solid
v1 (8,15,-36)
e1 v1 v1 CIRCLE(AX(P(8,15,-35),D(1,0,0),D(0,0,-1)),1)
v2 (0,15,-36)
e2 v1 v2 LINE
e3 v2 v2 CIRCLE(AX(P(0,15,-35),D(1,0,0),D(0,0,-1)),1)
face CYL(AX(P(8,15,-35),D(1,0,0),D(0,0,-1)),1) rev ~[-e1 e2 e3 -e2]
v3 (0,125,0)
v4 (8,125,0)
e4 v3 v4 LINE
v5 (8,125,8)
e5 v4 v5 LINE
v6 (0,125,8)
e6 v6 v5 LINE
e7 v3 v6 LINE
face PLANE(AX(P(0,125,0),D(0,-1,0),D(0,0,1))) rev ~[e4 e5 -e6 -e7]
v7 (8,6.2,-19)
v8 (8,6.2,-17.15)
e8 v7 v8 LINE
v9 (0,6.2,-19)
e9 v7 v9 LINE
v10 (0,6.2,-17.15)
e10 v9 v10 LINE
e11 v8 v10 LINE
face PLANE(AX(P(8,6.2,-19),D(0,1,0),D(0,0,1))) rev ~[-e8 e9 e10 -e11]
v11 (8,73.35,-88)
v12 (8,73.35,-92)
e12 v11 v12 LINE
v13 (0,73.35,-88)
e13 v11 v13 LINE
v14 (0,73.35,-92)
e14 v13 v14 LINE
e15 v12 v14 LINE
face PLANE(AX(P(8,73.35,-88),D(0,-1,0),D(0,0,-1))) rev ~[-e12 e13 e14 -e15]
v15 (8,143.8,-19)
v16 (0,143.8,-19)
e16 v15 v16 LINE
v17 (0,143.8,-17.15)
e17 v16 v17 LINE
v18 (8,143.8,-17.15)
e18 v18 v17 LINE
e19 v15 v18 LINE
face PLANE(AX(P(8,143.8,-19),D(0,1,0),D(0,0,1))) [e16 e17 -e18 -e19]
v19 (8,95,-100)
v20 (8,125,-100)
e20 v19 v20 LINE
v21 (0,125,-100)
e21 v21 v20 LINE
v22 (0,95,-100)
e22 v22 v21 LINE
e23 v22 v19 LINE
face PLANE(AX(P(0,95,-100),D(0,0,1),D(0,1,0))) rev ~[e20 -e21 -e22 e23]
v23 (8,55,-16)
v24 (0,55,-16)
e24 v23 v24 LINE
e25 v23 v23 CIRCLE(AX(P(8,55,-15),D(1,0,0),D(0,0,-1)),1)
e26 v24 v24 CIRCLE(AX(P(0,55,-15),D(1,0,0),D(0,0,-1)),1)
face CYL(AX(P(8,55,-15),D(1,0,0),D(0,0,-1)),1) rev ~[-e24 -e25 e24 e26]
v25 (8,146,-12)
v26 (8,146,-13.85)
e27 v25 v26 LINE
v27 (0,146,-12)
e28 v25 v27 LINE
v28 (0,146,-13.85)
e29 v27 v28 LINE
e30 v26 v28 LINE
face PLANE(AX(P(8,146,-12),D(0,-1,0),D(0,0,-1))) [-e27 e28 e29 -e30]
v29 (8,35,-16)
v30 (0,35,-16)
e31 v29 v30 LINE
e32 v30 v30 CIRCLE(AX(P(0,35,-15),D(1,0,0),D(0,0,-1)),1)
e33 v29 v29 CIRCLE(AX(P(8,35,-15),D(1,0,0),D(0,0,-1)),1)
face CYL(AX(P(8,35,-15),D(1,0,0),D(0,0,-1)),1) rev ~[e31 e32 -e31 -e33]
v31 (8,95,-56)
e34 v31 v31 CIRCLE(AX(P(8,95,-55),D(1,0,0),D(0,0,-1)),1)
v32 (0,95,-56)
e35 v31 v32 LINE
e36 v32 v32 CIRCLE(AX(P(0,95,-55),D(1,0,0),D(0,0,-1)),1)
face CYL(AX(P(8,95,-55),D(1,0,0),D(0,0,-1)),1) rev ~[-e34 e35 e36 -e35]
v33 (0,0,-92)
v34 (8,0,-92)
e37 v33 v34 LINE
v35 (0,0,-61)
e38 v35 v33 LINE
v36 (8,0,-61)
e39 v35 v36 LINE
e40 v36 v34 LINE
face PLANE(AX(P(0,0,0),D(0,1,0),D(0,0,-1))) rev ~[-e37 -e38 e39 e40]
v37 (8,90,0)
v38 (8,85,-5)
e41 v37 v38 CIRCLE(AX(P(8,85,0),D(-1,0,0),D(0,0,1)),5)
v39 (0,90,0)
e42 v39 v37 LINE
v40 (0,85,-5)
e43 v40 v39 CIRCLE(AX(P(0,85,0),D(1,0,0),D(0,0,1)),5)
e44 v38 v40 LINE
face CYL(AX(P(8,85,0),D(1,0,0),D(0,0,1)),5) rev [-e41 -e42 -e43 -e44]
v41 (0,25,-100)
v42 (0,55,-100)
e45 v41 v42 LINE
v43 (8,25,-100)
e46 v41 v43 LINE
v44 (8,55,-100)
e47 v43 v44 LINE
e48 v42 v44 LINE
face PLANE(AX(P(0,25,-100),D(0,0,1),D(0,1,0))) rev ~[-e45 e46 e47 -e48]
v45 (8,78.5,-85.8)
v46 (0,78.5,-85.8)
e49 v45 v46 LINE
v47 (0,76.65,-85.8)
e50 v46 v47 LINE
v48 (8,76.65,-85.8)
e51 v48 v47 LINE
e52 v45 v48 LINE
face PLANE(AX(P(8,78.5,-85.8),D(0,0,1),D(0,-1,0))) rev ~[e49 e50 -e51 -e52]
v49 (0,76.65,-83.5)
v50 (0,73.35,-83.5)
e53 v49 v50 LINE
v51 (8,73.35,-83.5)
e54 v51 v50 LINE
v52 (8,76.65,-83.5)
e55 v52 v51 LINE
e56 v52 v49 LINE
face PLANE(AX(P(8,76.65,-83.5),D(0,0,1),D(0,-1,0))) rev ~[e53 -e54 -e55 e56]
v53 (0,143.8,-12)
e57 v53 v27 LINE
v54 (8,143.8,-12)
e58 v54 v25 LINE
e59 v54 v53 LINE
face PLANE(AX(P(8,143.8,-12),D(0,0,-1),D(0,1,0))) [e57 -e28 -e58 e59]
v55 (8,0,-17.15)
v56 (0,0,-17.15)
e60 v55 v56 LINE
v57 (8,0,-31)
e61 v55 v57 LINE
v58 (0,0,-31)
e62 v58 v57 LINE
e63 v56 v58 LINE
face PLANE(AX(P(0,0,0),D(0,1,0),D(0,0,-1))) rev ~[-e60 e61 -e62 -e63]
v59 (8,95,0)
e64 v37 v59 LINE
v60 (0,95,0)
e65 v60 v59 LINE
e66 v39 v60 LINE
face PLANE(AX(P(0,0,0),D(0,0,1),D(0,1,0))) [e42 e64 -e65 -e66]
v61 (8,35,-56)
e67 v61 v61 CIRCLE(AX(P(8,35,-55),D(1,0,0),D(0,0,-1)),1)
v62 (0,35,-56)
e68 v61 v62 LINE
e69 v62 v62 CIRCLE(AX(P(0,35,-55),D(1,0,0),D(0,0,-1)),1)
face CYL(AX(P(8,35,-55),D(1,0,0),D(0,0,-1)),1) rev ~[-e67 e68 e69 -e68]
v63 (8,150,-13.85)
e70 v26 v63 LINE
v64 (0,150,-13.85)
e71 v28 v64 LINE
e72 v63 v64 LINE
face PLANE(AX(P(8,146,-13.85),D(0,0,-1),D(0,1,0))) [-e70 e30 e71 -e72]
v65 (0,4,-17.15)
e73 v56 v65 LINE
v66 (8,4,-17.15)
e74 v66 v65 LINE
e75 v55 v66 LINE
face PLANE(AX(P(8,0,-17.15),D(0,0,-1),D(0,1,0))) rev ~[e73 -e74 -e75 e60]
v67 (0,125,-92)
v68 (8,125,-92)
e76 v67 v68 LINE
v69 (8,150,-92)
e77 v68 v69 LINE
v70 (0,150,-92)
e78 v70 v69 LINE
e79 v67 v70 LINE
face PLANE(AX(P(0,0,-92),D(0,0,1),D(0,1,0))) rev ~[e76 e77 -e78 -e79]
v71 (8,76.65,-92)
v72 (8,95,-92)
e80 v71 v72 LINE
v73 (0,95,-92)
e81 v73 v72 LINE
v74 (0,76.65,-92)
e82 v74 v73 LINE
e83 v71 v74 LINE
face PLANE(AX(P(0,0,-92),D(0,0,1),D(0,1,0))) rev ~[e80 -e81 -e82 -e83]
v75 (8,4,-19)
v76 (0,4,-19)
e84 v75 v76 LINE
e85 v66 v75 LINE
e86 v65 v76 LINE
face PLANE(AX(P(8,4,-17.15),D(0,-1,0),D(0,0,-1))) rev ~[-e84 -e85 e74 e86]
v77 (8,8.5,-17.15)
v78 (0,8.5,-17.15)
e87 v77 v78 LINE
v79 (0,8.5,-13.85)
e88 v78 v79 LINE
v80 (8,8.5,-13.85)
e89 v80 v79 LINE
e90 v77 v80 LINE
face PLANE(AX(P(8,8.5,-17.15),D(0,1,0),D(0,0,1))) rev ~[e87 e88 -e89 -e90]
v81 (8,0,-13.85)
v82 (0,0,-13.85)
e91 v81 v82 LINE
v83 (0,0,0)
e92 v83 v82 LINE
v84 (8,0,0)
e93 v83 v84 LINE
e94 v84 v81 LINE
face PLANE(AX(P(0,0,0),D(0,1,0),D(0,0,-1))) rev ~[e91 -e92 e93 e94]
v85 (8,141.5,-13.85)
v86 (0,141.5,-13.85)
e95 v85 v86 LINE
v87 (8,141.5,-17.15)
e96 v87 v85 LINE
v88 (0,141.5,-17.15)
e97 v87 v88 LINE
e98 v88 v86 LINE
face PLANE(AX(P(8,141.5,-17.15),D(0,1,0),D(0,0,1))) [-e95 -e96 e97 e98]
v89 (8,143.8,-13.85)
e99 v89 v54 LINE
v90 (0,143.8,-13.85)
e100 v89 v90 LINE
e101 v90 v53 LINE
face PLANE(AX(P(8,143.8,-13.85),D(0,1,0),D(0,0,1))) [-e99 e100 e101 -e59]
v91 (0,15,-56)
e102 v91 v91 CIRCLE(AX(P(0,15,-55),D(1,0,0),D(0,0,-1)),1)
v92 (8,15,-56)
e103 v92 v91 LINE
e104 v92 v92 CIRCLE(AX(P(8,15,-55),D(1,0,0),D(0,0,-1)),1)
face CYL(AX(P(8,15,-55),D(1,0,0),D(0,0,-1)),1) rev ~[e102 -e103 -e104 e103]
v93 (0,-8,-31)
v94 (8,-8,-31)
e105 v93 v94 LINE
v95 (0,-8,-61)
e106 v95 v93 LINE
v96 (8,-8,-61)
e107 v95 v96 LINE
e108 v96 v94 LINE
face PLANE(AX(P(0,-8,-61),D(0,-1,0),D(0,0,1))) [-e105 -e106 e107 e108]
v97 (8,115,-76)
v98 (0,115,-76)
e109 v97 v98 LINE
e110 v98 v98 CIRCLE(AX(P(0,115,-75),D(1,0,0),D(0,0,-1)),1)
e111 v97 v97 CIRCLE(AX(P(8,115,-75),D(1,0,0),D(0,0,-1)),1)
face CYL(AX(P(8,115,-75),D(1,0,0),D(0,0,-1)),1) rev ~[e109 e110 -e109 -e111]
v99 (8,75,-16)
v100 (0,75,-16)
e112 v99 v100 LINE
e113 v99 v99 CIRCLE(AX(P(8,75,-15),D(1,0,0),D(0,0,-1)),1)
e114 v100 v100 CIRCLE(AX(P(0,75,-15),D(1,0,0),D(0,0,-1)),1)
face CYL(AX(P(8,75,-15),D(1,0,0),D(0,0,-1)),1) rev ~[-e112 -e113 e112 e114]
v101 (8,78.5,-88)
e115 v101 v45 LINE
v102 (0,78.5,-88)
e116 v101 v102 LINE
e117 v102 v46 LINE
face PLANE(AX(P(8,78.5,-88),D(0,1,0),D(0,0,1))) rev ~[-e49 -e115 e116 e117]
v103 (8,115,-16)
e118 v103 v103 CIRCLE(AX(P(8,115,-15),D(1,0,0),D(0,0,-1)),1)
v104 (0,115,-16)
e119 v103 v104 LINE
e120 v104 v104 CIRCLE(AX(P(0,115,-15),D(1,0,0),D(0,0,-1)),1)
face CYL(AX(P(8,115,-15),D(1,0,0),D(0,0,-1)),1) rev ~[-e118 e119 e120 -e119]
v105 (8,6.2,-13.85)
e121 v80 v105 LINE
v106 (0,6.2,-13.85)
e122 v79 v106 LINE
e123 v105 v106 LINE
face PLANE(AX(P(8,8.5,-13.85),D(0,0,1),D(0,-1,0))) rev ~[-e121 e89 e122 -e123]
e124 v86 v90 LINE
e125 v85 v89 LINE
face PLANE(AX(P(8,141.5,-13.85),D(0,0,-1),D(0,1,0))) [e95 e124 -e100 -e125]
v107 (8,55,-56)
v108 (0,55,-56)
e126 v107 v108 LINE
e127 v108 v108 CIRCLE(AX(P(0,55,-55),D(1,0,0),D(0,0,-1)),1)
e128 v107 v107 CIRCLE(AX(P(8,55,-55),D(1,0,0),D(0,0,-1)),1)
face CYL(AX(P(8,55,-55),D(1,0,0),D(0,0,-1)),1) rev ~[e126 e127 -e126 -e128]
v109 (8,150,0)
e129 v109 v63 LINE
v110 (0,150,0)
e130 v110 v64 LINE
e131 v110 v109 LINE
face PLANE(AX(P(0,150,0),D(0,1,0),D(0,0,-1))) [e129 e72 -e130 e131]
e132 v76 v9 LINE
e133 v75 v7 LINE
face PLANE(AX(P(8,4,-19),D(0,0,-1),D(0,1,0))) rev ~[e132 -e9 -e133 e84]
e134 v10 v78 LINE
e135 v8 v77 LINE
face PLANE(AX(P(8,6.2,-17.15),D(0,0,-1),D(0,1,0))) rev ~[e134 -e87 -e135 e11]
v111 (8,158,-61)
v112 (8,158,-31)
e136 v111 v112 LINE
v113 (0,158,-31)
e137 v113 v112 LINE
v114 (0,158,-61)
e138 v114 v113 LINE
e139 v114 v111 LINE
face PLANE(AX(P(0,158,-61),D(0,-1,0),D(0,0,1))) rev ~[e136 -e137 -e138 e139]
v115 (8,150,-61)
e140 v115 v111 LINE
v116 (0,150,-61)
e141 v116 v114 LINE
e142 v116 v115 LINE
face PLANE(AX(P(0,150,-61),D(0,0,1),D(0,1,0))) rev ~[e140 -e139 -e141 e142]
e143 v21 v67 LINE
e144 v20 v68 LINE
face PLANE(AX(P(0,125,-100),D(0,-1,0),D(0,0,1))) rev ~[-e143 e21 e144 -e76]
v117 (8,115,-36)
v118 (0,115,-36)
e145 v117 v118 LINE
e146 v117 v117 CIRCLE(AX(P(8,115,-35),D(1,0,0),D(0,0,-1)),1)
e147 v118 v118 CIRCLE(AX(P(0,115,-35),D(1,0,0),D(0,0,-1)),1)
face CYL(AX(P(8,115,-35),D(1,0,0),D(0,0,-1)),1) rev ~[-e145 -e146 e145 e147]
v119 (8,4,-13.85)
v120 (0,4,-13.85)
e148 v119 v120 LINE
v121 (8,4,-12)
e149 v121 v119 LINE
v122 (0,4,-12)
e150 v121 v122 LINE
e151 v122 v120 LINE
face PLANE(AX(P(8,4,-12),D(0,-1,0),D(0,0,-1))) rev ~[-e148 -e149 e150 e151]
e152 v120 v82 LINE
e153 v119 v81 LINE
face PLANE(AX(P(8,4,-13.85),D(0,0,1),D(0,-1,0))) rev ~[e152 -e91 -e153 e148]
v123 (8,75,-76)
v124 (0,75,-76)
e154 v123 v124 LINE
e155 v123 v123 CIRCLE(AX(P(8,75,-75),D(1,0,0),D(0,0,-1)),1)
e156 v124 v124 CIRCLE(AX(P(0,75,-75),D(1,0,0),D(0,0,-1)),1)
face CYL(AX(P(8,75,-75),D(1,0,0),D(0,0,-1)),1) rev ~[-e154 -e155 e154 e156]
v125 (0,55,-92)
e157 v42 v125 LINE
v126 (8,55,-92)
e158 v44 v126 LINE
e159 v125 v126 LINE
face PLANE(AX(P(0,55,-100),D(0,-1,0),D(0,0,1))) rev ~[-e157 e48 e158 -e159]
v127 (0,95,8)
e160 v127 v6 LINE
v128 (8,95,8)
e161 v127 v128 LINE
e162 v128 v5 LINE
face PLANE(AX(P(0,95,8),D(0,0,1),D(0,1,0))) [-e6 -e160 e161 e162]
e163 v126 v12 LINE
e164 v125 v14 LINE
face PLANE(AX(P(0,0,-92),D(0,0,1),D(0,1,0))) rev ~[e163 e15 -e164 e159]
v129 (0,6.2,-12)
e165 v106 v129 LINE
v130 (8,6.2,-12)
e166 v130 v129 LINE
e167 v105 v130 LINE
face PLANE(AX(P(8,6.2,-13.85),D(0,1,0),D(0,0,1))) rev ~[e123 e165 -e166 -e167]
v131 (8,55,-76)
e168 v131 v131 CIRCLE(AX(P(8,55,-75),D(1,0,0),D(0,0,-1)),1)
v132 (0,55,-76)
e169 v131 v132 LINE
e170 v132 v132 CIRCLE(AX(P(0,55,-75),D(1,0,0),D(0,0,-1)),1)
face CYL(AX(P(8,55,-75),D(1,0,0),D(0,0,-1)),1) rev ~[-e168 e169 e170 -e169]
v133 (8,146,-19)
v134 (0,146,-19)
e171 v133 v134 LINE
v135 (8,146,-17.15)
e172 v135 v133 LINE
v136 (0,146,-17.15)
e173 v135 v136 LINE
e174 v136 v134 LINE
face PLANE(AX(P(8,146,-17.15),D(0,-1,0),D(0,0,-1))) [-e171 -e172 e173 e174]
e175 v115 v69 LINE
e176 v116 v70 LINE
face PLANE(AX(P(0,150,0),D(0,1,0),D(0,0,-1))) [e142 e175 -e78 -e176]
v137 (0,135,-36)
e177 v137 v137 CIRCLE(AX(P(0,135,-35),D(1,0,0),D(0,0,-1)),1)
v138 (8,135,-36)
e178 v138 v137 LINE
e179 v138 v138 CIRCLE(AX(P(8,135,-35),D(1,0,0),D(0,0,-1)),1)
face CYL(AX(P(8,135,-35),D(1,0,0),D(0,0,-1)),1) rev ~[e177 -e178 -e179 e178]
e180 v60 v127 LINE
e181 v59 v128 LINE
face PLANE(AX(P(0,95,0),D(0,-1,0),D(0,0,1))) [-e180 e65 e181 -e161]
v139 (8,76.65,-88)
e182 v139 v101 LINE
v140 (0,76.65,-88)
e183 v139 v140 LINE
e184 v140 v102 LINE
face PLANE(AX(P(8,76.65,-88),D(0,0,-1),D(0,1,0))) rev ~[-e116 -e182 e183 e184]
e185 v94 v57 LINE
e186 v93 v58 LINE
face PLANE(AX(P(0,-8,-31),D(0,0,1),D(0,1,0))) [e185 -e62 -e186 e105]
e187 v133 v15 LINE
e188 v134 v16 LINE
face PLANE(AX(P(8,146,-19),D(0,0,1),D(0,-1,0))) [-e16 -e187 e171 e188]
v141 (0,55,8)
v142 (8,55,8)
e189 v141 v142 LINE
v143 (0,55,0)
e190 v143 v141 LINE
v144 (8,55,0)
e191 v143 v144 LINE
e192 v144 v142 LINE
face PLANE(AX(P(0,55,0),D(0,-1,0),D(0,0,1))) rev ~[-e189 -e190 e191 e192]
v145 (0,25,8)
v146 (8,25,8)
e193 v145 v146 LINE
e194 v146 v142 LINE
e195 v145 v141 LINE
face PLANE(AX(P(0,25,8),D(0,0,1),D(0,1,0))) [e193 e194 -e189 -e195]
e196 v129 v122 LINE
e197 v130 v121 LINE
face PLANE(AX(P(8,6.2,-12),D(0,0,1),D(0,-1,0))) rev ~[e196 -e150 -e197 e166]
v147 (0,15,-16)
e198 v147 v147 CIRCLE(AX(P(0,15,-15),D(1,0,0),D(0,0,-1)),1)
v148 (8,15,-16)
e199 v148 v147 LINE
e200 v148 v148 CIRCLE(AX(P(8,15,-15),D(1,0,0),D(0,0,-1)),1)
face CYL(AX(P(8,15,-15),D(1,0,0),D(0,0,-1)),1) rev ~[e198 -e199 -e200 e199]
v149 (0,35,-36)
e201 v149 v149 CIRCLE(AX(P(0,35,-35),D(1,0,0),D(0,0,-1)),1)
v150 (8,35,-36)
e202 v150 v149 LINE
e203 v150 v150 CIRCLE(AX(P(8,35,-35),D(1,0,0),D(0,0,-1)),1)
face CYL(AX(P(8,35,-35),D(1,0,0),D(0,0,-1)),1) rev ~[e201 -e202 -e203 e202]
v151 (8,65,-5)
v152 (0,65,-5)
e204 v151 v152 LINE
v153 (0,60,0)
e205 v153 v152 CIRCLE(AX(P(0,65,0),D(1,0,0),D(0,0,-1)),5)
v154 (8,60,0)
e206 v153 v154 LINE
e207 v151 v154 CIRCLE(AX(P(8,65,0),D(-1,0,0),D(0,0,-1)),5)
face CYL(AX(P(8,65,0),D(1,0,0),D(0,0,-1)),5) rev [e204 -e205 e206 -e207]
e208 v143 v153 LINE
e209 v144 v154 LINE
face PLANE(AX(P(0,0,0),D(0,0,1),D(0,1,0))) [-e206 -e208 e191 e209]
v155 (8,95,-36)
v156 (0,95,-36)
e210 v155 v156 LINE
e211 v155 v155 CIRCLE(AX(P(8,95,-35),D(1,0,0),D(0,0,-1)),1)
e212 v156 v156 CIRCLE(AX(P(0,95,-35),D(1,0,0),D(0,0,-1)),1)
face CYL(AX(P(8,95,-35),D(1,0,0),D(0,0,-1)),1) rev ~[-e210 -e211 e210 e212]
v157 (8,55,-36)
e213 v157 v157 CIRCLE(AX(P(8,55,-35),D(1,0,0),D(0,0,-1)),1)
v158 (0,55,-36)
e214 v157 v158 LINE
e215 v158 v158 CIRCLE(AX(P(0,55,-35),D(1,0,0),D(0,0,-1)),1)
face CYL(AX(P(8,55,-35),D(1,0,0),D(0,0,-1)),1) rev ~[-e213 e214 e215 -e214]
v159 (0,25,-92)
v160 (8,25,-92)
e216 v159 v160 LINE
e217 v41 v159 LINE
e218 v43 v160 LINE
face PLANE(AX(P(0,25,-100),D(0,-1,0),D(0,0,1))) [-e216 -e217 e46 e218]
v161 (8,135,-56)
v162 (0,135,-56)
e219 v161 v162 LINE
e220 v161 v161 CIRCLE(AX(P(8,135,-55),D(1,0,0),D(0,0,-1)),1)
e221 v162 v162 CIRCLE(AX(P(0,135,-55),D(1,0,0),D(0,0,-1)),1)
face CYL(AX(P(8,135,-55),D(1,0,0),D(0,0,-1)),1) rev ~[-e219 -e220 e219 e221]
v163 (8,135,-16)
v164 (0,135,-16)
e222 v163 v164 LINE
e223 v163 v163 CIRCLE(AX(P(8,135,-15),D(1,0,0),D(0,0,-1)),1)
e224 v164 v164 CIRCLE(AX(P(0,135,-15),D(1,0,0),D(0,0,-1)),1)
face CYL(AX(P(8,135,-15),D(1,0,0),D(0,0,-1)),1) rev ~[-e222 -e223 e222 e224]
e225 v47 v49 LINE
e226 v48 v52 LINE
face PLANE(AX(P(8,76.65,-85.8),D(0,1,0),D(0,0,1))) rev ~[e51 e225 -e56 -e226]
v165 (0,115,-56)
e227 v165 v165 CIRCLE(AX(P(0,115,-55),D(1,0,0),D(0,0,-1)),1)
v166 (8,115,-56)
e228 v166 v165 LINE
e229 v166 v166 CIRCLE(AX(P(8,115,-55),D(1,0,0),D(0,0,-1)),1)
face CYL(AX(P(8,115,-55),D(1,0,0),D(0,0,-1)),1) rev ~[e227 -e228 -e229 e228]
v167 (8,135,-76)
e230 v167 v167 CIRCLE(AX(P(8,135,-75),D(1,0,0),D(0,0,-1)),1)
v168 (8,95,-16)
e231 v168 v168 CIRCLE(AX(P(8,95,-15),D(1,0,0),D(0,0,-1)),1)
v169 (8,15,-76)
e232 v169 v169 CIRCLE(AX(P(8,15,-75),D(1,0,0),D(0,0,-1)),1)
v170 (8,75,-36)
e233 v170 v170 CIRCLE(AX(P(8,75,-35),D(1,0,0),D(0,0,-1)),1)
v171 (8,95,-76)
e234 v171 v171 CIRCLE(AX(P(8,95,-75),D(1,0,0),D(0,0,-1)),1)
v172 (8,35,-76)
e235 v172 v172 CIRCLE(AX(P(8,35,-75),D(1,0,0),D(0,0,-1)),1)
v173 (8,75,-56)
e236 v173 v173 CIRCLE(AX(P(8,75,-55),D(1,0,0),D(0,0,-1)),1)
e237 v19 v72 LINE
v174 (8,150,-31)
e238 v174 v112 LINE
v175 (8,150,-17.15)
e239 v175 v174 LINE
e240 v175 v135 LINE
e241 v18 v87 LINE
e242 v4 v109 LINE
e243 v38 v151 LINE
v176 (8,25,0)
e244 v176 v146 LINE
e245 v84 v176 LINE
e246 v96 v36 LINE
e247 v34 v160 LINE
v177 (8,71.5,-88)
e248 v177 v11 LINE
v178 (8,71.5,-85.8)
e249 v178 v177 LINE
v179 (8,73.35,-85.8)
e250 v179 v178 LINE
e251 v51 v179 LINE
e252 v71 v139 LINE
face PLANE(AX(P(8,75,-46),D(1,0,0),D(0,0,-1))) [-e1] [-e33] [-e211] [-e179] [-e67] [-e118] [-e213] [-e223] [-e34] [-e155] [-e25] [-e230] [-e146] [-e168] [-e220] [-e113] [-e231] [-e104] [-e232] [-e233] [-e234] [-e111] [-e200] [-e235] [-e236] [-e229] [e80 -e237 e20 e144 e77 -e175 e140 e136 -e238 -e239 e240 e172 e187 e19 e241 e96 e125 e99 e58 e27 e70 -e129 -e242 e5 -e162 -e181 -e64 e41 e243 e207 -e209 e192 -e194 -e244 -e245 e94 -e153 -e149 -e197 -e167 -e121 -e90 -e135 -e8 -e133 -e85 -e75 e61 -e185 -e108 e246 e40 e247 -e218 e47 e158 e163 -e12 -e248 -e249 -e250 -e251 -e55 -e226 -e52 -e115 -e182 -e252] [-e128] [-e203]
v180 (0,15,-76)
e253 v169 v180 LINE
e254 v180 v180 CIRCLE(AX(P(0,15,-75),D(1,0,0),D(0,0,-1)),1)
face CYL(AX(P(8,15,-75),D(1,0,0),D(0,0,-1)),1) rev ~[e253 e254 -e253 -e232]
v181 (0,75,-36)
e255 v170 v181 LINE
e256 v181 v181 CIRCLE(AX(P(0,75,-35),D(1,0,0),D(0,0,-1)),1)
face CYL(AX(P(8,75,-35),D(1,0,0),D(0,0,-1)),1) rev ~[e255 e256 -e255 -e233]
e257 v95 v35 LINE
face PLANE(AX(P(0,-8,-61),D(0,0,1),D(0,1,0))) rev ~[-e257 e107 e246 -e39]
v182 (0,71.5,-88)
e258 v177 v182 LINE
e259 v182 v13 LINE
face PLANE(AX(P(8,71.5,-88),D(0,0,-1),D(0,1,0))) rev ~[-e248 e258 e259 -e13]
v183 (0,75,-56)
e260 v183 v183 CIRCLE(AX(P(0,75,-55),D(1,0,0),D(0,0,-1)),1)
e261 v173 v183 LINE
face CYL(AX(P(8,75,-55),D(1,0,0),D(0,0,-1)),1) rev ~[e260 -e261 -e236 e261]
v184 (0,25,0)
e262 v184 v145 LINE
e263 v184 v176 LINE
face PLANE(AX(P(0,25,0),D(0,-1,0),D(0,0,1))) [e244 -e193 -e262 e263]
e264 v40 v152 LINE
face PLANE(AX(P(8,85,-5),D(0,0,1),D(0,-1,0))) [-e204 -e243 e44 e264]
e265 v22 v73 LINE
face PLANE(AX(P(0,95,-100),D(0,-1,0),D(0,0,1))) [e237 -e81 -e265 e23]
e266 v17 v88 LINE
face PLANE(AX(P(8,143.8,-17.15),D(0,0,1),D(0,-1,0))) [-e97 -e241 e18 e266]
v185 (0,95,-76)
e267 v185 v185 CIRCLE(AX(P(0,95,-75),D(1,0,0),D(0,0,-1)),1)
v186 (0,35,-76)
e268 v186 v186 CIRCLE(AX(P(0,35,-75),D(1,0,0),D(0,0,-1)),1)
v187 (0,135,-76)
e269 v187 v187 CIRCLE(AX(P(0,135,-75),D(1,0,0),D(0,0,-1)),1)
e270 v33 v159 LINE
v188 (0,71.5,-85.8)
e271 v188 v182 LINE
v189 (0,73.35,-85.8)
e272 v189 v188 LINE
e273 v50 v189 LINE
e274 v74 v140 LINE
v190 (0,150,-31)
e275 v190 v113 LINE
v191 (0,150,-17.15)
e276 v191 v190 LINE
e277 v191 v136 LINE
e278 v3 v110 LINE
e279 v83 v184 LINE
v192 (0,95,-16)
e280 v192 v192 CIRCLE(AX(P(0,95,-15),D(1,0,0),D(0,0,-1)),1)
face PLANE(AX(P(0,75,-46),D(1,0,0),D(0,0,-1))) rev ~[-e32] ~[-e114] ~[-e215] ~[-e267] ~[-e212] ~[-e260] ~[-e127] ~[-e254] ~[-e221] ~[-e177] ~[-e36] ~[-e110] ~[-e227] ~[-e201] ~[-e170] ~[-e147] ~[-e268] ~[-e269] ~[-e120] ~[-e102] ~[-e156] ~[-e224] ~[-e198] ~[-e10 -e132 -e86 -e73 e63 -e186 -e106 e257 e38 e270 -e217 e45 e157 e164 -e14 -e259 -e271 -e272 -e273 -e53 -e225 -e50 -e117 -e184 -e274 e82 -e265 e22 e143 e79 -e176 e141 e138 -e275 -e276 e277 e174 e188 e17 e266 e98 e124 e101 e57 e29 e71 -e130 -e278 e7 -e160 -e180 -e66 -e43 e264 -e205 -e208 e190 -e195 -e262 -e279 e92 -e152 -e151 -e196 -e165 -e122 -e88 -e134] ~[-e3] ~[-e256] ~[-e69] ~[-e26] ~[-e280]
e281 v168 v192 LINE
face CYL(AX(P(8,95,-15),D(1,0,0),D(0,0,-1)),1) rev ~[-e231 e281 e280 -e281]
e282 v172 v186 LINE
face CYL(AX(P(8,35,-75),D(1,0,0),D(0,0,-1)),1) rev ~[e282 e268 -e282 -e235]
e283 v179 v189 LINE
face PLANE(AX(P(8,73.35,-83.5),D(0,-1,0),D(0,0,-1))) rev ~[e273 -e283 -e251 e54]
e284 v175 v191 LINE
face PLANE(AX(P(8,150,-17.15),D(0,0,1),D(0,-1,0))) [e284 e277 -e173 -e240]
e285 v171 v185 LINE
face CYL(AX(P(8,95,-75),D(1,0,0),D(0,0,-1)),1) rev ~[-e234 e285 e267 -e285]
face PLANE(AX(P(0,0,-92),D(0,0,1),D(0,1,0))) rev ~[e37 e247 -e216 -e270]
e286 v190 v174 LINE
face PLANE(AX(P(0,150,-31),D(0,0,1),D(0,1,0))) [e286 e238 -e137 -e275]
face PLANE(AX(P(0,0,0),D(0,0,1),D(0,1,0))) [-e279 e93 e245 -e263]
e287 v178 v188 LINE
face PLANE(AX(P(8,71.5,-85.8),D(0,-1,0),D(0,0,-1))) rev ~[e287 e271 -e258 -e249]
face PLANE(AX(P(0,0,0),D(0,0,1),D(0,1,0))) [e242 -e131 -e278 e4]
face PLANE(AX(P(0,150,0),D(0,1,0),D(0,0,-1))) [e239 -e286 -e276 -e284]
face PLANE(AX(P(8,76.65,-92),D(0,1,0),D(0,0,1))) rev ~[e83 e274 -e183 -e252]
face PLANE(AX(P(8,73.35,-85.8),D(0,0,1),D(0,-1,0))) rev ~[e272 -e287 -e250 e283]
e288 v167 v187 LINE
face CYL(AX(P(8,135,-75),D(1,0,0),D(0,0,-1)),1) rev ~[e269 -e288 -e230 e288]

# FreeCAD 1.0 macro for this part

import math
import FreeCAD as App
import Part
import Sketcher

V = App.Vector
Q = App.Units.Quantity

doc = App.newDocument("Part")
body = doc.addObject("PartDesign::Body", "Body")

# Sketch on YZ plane
sketch1 = doc.addObject("Sketcher::SketchObject", "Sketch")
body.addObject(sketch1)
sketch1.AttachmentSupport = (doc.YZ_Plane, [""])
sketch1.MapMode = "FlatFace"
sketch1.addGeometry(Part.LineSegment(V(150, 0, 0), V(0, 0, 0)), False)
sketch1.addGeometry(Part.LineSegment(V(0, 0, 0), V(0, -92, 0)), False)
sketch1.addGeometry(Part.LineSegment(V(0, -92, 0), V(150, -92, 0)), False)
sketch1.addGeometry(Part.LineSegment(V(150, -92, 0), V(150, 0, 0)), False)
sketch1.addConstraint(Sketcher.Constraint("Coincident", 0, 2, 1, 1))
sketch1.addConstraint(Sketcher.Constraint("Coincident", 1, 2, 2, 1))
sketch1.addConstraint(Sketcher.Constraint("Coincident", 2, 2, 3, 1))
sketch1.addConstraint(Sketcher.Constraint("Coincident", 3, 2, 0, 1))
sketch1.addConstraint(Sketcher.Constraint("Horizontal", 0))
sketch1.addConstraint(Sketcher.Constraint("Vertical", 1))
sketch1.addConstraint(Sketcher.Constraint("Horizontal", 2))
sketch1.addConstraint(Sketcher.Constraint("Vertical", 3))
sketch1.addConstraint(Sketcher.Constraint("Coincident", 0, 2, -1, 1))
sketch1.addConstraint(Sketcher.Constraint("DistanceX", 0, 2, 0, 1, Q("150 mm")))
sketch1.addConstraint(Sketcher.Constraint("DistanceY", 1, 2, 1, 1, Q("92 mm")))
pad1 = doc.addObject("PartDesign::Pad", "Pad")
body.addObject(pad1)
pad1.Profile = sketch1
pad1.Length = 8

# Sketch on YZ plane
sketch2 = doc.addObject("Sketcher::SketchObject", "Sketch001")
body.addObject(sketch2)
sketch2.AttachmentSupport = (doc.YZ_Plane, [""])
sketch2.MapMode = "FlatFace"
sketch2.addGeometry(Part.LineSegment(V(158, -61, 0), V(150, -61, 0)), False)
sketch2.addGeometry(Part.LineSegment(V(150, -61, 0), V(150, -31, 0)), False)
sketch2.addGeometry(Part.LineSegment(V(150, -31, 0), V(158, -31, 0)), False)
sketch2.addGeometry(Part.LineSegment(V(158, -31, 0), V(158, -61, 0)), False)
sketch2.addGeometry(Part.LineSegment(V(0, -61, 0), V(-8, -61, 0)), False)
sketch2.addGeometry(Part.LineSegment(V(-8, -61, 0), V(-8, -31, 0)), False)
sketch2.addGeometry(Part.LineSegment(V(-8, -31, 0), V(0, -31, 0)), False)
sketch2.addGeometry(Part.LineSegment(V(0, -31, 0), V(0, -61, 0)), False)
sketch2.addGeometry(Part.LineSegment(V(55, 0, 0), V(25, 0, 0)), False)
sketch2.addGeometry(Part.LineSegment(V(25, 0, 0), V(25, 8, 0)), False)
sketch2.addGeometry(Part.LineSegment(V(25, 8, 0), V(55, 8, 0)), False)
sketch2.addGeometry(Part.LineSegment(V(55, 8, 0), V(55, 0, 0)), False)
sketch2.addGeometry(Part.LineSegment(V(125, 0, 0), V(95, 0, 0)), False)
sketch2.addGeometry(Part.LineSegment(V(95, 0, 0), V(95, 8, 0)), False)
sketch2.addGeometry(Part.LineSegment(V(95, 8, 0), V(125, 8, 0)), False)
sketch2.addGeometry(Part.LineSegment(V(125, 8, 0), V(125, 0, 0)), False)
sketch2.addGeometry(Part.LineSegment(V(55, -100, 0), V(25, -100, 0)), False)
sketch2.addGeometry(Part.LineSegment(V(25, -100, 0), V(25, -92, 0)), False)
sketch2.addGeometry(Part.LineSegment(V(25, -92, 0), V(55, -92, 0)), False)
sketch2.addGeometry(Part.LineSegment(V(55, -92, 0), V(55, -100, 0)), False)
sketch2.addGeometry(Part.LineSegment(V(125, -100, 0), V(95, -100, 0)), False)
sketch2.addGeometry(Part.LineSegment(V(95, -100, 0), V(95, -92, 0)), False)
sketch2.addGeometry(Part.LineSegment(V(95, -92, 0), V(125, -92, 0)), False)
sketch2.addGeometry(Part.LineSegment(V(125, -92, 0), V(125, -100, 0)), False)
sketch2.addConstraint(Sketcher.Constraint("Coincident", 0, 2, 1, 1))
sketch2.addConstraint(Sketcher.Constraint("Coincident", 1, 2, 2, 1))
sketch2.addConstraint(Sketcher.Constraint("Coincident", 2, 2, 3, 1))
sketch2.addConstraint(Sketcher.Constraint("Coincident", 3, 2, 0, 1))
sketch2.addConstraint(Sketcher.Constraint("Coincident", 4, 2, 5, 1))
sketch2.addConstraint(Sketcher.Constraint("Coincident", 5, 2, 6, 1))
sketch2.addConstraint(Sketcher.Constraint("Coincident", 6, 2, 7, 1))
sketch2.addConstraint(Sketcher.Constraint("Coincident", 7, 2, 4, 1))
sketch2.addConstraint(Sketcher.Constraint("Coincident", 8, 2, 9, 1))
sketch2.addConstraint(Sketcher.Constraint("Coincident", 9, 2, 10, 1))
sketch2.addConstraint(Sketcher.Constraint("Coincident", 10, 2, 11, 1))
sketch2.addConstraint(Sketcher.Constraint("Coincident", 11, 2, 8, 1))
sketch2.addConstraint(Sketcher.Constraint("Coincident", 12, 2, 13, 1))
sketch2.addConstraint(Sketcher.Constraint("Coincident", 13, 2, 14, 1))
sketch2.addConstraint(Sketcher.Constraint("Coincident", 14, 2, 15, 1))
sketch2.addConstraint(Sketcher.Constraint("Coincident", 15, 2, 12, 1))
sketch2.addConstraint(Sketcher.Constraint("Coincident", 16, 2, 17, 1))
sketch2.addConstraint(Sketcher.Constraint("Coincident", 17, 2, 18, 1))
sketch2.addConstraint(Sketcher.Constraint("Coincident", 18, 2, 19, 1))
sketch2.addConstraint(Sketcher.Constraint("Coincident", 19, 2, 16, 1))
sketch2.addConstraint(Sketcher.Constraint("Coincident", 20, 2, 21, 1))
sketch2.addConstraint(Sketcher.Constraint("Coincident", 21, 2, 22, 1))
sketch2.addConstraint(Sketcher.Constraint("Coincident", 22, 2, 23, 1))
sketch2.addConstraint(Sketcher.Constraint("Coincident", 23, 2, 20, 1))
sketch2.addConstraint(Sketcher.Constraint("Horizontal", 0))
sketch2.addConstraint(Sketcher.Constraint("Vertical", 1))
sketch2.addConstraint(Sketcher.Constraint("Horizontal", 2))
sketch2.addConstraint(Sketcher.Constraint("Vertical", 3))
sketch2.addConstraint(Sketcher.Constraint("Horizontal", 4))
sketch2.addConstraint(Sketcher.Constraint("Vertical", 5))
sketch2.addConstraint(Sketcher.Constraint("Horizontal", 6))
sketch2.addConstraint(Sketcher.Constraint("Vertical", 7))
sketch2.addConstraint(Sketcher.Constraint("Horizontal", 8))
sketch2.addConstraint(Sketcher.Constraint("Vertical", 9))
sketch2.addConstraint(Sketcher.Constraint("Horizontal", 10))
sketch2.addConstraint(Sketcher.Constraint("Vertical", 11))
sketch2.addConstraint(Sketcher.Constraint("Horizontal", 12))
sketch2.addConstraint(Sketcher.Constraint("Vertical", 13))
sketch2.addConstraint(Sketcher.Constraint("Horizontal", 14))
sketch2.addConstraint(Sketcher.Constraint("Vertical", 15))
sketch2.addConstraint(Sketcher.Constraint("Horizontal", 16))
sketch2.addConstraint(Sketcher.Constraint("Vertical", 17))
sketch2.addConstraint(Sketcher.Constraint("Horizontal", 18))
sketch2.addConstraint(Sketcher.Constraint("Vertical", 19))
sketch2.addConstraint(Sketcher.Constraint("Horizontal", 20))
sketch2.addConstraint(Sketcher.Constraint("Vertical", 21))
sketch2.addConstraint(Sketcher.Constraint("Horizontal", 22))
sketch2.addConstraint(Sketcher.Constraint("Vertical", 23))
sketch2.addConstraint(Sketcher.Constraint("PointOnObject", 6, 2, -2))
sketch2.addConstraint(Sketcher.Constraint("PointOnObject", 8, 2, -1))
sketch2.addConstraint(Sketcher.Constraint("PointOnObject", 12, 2, -1))
sketch2.addConstraint(Sketcher.Constraint("Horizontal", 3, 2, 4, 2))
sketch2.addConstraint(Sketcher.Constraint("Horizontal", 2, 2, 5, 2))
sketch2.addConstraint(Sketcher.Constraint("Horizontal", 10, 2, 13, 2))
sketch2.addConstraint(Sketcher.Constraint("Horizontal", 19, 2, 20, 2))
sketch2.addConstraint(Sketcher.Constraint("Horizontal", 18, 2, 21, 2))
sketch2.addConstraint(Sketcher.Constraint("Vertical", 9, 2, 16, 2))
sketch2.addConstraint(Sketcher.Constraint("Vertical", 11, 2, 18, 2))
sketch2.addConstraint(Sketcher.Constraint("Vertical", 13, 2, 20, 2))
sketch2.addConstraint(Sketcher.Constraint("Vertical", 15, 2, 22, 2))
sketch2.addConstraint(Sketcher.Constraint("Equal", 2, 4))
sketch2.addConstraint(Sketcher.Constraint("Equal", 10, 12))
sketch2.addConstraint(Sketcher.Constraint("Equal", 22, 1))
sketch2.addConstraint(Sketcher.Constraint("Equal", 6, 9))
sketch2.addConstraint(Sketcher.Constraint("Equal", 15, 17))
sketch2.addConstraint(Sketcher.Constraint("DistanceX", 0, 2, 0, 1, Q("8 mm")))
sketch2.addConstraint(Sketcher.Constraint("DistanceX", 8, 2, 8, 1, Q("30 mm")))
sketch2.addConstraint(Sketcher.Constraint("DistanceX", -1, 1, 0, 2, Q("150 mm")))
sketch2.addConstraint(Sketcher.Constraint("DistanceY", 0, 2, -1, 1, Q("61 mm")))
sketch2.addConstraint(Sketcher.Constraint("DistanceX", -1, 1, 8, 2, Q("25 mm")))
sketch2.addConstraint(Sketcher.Constraint("DistanceX", -1, 1, 12, 2, Q("95 mm")))
sketch2.addConstraint(Sketcher.Constraint("DistanceY", 16, 2, -1, 1, Q("100 mm")))
pad2 = doc.addObject("PartDesign::Pad", "Pad001")
body.addObject(pad2)
pad2.Profile = sketch2
pad2.Length = 8

# Sketch on YZ plane
sketch3 = doc.addObject("Sketcher::SketchObject", "Sketch002")
body.addObject(sketch3)
sketch3.AttachmentSupport = (doc.YZ_Plane, [""])
sketch3.MapMode = "FlatFace"
sketch3.AttachmentOffset = App.Placement(V(0, 0, 8), App.Rotation())
sketch3.addGeometry(Part.Circle(V(135, -15, 0), V(0, 0, 1), 1), False)
sketch3.addGeometry(Part.Circle(V(135, -35, 0), V(0, 0, 1), 1), False)
sketch3.addGeometry(Part.Circle(V(135, -55, 0), V(0, 0, 1), 1), False)
sketch3.addGeometry(Part.Circle(V(135, -75, 0), V(0, 0, 1), 1), False)
sketch3.addGeometry(Part.Circle(V(115, -15, 0), V(0, 0, 1), 1), False)
sketch3.addGeometry(Part.Circle(V(115, -35, 0), V(0, 0, 1), 1), False)
sketch3.addGeometry(Part.Circle(V(115, -55, 0), V(0, 0, 1), 1), False)
sketch3.addGeometry(Part.Circle(V(115, -75, 0), V(0, 0, 1), 1), False)
sketch3.addGeometry(Part.Circle(V(95, -15, 0), V(0, 0, 1), 1), False)
sketch3.addGeometry(Part.Circle(V(95, -35, 0), V(0, 0, 1), 1), False)
sketch3.addGeometry(Part.Circle(V(95, -55, 0), V(0, 0, 1), 1), False)
sketch3.addGeometry(Part.Circle(V(95, -75, 0), V(0, 0, 1), 1), False)
sketch3.addGeometry(Part.Circle(V(75, -15, 0), V(0, 0, 1), 1), False)
sketch3.addGeometry(Part.Circle(V(75, -35, 0), V(0, 0, 1), 1), False)
sketch3.addGeometry(Part.Circle(V(75, -55, 0), V(0, 0, 1), 1), False)
sketch3.addGeometry(Part.Circle(V(75, -75, 0), V(0, 0, 1), 1), False)
sketch3.addGeometry(Part.Circle(V(55, -15, 0), V(0, 0, 1), 1), False)
sketch3.addGeometry(Part.Circle(V(55, -35, 0), V(0, 0, 1), 1), False)
sketch3.addGeometry(Part.Circle(V(55, -55, 0), V(0, 0, 1), 1), False)
sketch3.addGeometry(Part.Circle(V(55, -75, 0), V(0, 0, 1), 1), False)
sketch3.addGeometry(Part.Circle(V(35, -15, 0), V(0, 0, 1), 1), False)
sketch3.addGeometry(Part.Circle(V(35, -35, 0), V(0, 0, 1), 1), False)
sketch3.addGeometry(Part.Circle(V(35, -55, 0), V(0, 0, 1), 1), False)
sketch3.addGeometry(Part.Circle(V(35, -75, 0), V(0, 0, 1), 1), False)
sketch3.addGeometry(Part.Circle(V(15, -15, 0), V(0, 0, 1), 1), False)
sketch3.addGeometry(Part.Circle(V(15, -35, 0), V(0, 0, 1), 1), False)
sketch3.addGeometry(Part.Circle(V(15, -55, 0), V(0, 0, 1), 1), False)
sketch3.addGeometry(Part.Circle(V(15, -75, 0), V(0, 0, 1), 1), False)
sketch3.addConstraint(Sketcher.Constraint("Equal", 0, 1))
sketch3.addConstraint(Sketcher.Constraint("Equal", 1, 2))
sketch3.addConstraint(Sketcher.Constraint("Equal", 2, 3))
sketch3.addConstraint(Sketcher.Constraint("Equal", 3, 4))
sketch3.addConstraint(Sketcher.Constraint("Equal", 4, 5))
sketch3.addConstraint(Sketcher.Constraint("Equal", 5, 6))
sketch3.addConstraint(Sketcher.Constraint("Equal", 6, 7))
sketch3.addConstraint(Sketcher.Constraint("Equal", 7, 8))
sketch3.addConstraint(Sketcher.Constraint("Equal", 8, 9))
sketch3.addConstraint(Sketcher.Constraint("Equal", 9, 10))
sketch3.addConstraint(Sketcher.Constraint("Equal", 10, 11))
sketch3.addConstraint(Sketcher.Constraint("Equal", 11, 12))
sketch3.addConstraint(Sketcher.Constraint("Equal", 12, 13))
sketch3.addConstraint(Sketcher.Constraint("Equal", 13, 14))
sketch3.addConstraint(Sketcher.Constraint("Equal", 14, 15))
sketch3.addConstraint(Sketcher.Constraint("Equal", 15, 16))
sketch3.addConstraint(Sketcher.Constraint("Equal", 16, 17))
sketch3.addConstraint(Sketcher.Constraint("Equal", 17, 18))
sketch3.addConstraint(Sketcher.Constraint("Equal", 18, 19))
sketch3.addConstraint(Sketcher.Constraint("Equal", 19, 20))
sketch3.addConstraint(Sketcher.Constraint("Equal", 20, 21))
sketch3.addConstraint(Sketcher.Constraint("Equal", 21, 22))
sketch3.addConstraint(Sketcher.Constraint("Equal", 22, 23))
sketch3.addConstraint(Sketcher.Constraint("Equal", 23, 24))
sketch3.addConstraint(Sketcher.Constraint("Equal", 24, 25))
sketch3.addConstraint(Sketcher.Constraint("Equal", 25, 26))
sketch3.addConstraint(Sketcher.Constraint("Equal", 26, 27))
sketch3.addConstraint(Sketcher.Constraint("Horizontal", 0, 3, 4, 3))
sketch3.addConstraint(Sketcher.Constraint("Horizontal", 1, 3, 5, 3))
sketch3.addConstraint(Sketcher.Constraint("Horizontal", 2, 3, 6, 3))
sketch3.addConstraint(Sketcher.Constraint("Horizontal", 3, 3, 7, 3))
sketch3.addConstraint(Sketcher.Constraint("Horizontal", 4, 3, 8, 3))
sketch3.addConstraint(Sketcher.Constraint("Horizontal", 5, 3, 9, 3))
sketch3.addConstraint(Sketcher.Constraint("Horizontal", 6, 3, 10, 3))
sketch3.addConstraint(Sketcher.Constraint("Horizontal", 7, 3, 11, 3))
sketch3.addConstraint(Sketcher.Constraint("Horizontal", 8, 3, 12, 3))
sketch3.addConstraint(Sketcher.Constraint("Horizontal", 9, 3, 13, 3))
sketch3.addConstraint(Sketcher.Constraint("Horizontal", 10, 3, 14, 3))
sketch3.addConstraint(Sketcher.Constraint("Horizontal", 11, 3, 15, 3))
sketch3.addConstraint(Sketcher.Constraint("Horizontal", 12, 3, 16, 3))
sketch3.addConstraint(Sketcher.Constraint("Horizontal", 13, 3, 17, 3))
sketch3.addConstraint(Sketcher.Constraint("Horizontal", 14, 3, 18, 3))
sketch3.addConstraint(Sketcher.Constraint("Horizontal", 15, 3, 19, 3))
sketch3.addConstraint(Sketcher.Constraint("Horizontal", 16, 3, 20, 3))
sketch3.addConstraint(Sketcher.Constraint("Horizontal", 17, 3, 21, 3))
sketch3.addConstraint(Sketcher.Constraint("Horizontal", 18, 3, 22, 3))
sketch3.addConstraint(Sketcher.Constraint("Horizontal", 19, 3, 23, 3))
sketch3.addConstraint(Sketcher.Constraint("Horizontal", 20, 3, 24, 3))
sketch3.addConstraint(Sketcher.Constraint("Horizontal", 21, 3, 25, 3))
sketch3.addConstraint(Sketcher.Constraint("Horizontal", 22, 3, 26, 3))
sketch3.addConstraint(Sketcher.Constraint("Horizontal", 23, 3, 27, 3))
sketch3.addConstraint(Sketcher.Constraint("Vertical", 0, 3, 1, 3))
sketch3.addConstraint(Sketcher.Constraint("Vertical", 1, 3, 2, 3))
sketch3.addConstraint(Sketcher.Constraint("Vertical", 2, 3, 3, 3))
sketch3.addConstraint(Sketcher.Constraint("Vertical", 4, 3, 5, 3))
sketch3.addConstraint(Sketcher.Constraint("Vertical", 5, 3, 6, 3))
sketch3.addConstraint(Sketcher.Constraint("Vertical", 6, 3, 7, 3))
sketch3.addConstraint(Sketcher.Constraint("Vertical", 8, 3, 9, 3))
sketch3.addConstraint(Sketcher.Constraint("Vertical", 9, 3, 10, 3))
sketch3.addConstraint(Sketcher.Constraint("Vertical", 10, 3, 11, 3))
sketch3.addConstraint(Sketcher.Constraint("Vertical", 12, 3, 13, 3))
sketch3.addConstraint(Sketcher.Constraint("Vertical", 13, 3, 14, 3))
sketch3.addConstraint(Sketcher.Constraint("Vertical", 14, 3, 15, 3))
sketch3.addConstraint(Sketcher.Constraint("Vertical", 16, 3, 17, 3))
sketch3.addConstraint(Sketcher.Constraint("Vertical", 17, 3, 18, 3))
sketch3.addConstraint(Sketcher.Constraint("Vertical", 18, 3, 19, 3))
sketch3.addConstraint(Sketcher.Constraint("Vertical", 20, 3, 21, 3))
sketch3.addConstraint(Sketcher.Constraint("Vertical", 21, 3, 22, 3))
sketch3.addConstraint(Sketcher.Constraint("Vertical", 22, 3, 23, 3))
sketch3.addConstraint(Sketcher.Constraint("Vertical", 24, 3, 25, 3))
sketch3.addConstraint(Sketcher.Constraint("Vertical", 25, 3, 26, 3))
sketch3.addConstraint(Sketcher.Constraint("Vertical", 26, 3, 27, 3))
sketch3.addConstraint(Sketcher.Constraint("Diameter", 0, Q("2 mm")))
sketch3.addConstraint(Sketcher.Constraint("DistanceX", -1, 1, 0, 3, Q("135 mm")))
sketch3.addConstraint(Sketcher.Constraint("DistanceY", 0, 3, -1, 1, Q("15 mm")))
sketch3.addConstraint(Sketcher.Constraint("DistanceY", 1, 3, -1, 1, Q("35 mm")))
sketch3.addConstraint(Sketcher.Constraint("DistanceY", 2, 3, -1, 1, Q("55 mm")))
sketch3.addConstraint(Sketcher.Constraint("DistanceY", 3, 3, -1, 1, Q("75 mm")))
sketch3.addConstraint(Sketcher.Constraint("DistanceX", -1, 1, 4, 3, Q("115 mm")))
sketch3.addConstraint(Sketcher.Constraint("DistanceX", -1, 1, 8, 3, Q("95 mm")))
sketch3.addConstraint(Sketcher.Constraint("DistanceX", -1, 1, 12, 3, Q("75 mm")))
sketch3.addConstraint(Sketcher.Constraint("DistanceX", -1, 1, 16, 3, Q("55 mm")))
sketch3.addConstraint(Sketcher.Constraint("DistanceX", -1, 1, 20, 3, Q("35 mm")))
sketch3.addConstraint(Sketcher.Constraint("DistanceX", -1, 1, 24, 3, Q("15 mm")))
pocket1 = doc.addObject("PartDesign::Pocket", "Pocket")
body.addObject(pocket1)
pocket1.Profile = sketch3
pocket1.Length = 8

# Sketch on YZ plane
sketch4 = doc.addObject("Sketcher::SketchObject", "Sketch003")
body.addObject(sketch4)
sketch4.AttachmentSupport = (doc.YZ_Plane, [""])
sketch4.MapMode = "FlatFace"
sketch4.AttachmentOffset = App.Placement(V(0, 0, 8), App.Rotation())
sketch4.addGeometry(Part.LineSegment(V(65, -5, 0), V(85, -5, 0)), False)
sketch4.addGeometry(Part.ArcOfCircle(Part.Circle(V(85, 0, 0), V(0, 0, 1), 5), math.radians(-90), math.radians(90)), False)
sketch4.addGeometry(Part.LineSegment(V(85, 5, 0), V(65, 5, 0)), False)
sketch4.addGeometry(Part.ArcOfCircle(Part.Circle(V(65, 0, 0), V(0, 0, 1), 5), math.radians(90), math.radians(270)), False)
sketch4.addConstraint(Sketcher.Constraint("Tangent", 0, 2, 1, 1))
sketch4.addConstraint(Sketcher.Constraint("Tangent", 1, 2, 2, 1))
sketch4.addConstraint(Sketcher.Constraint("Tangent", 2, 2, 3, 1))
sketch4.addConstraint(Sketcher.Constraint("Tangent", 3, 2, 0, 1))
sketch4.addConstraint(Sketcher.Constraint("Horizontal", 0))
sketch4.addConstraint(Sketcher.Constraint("Horizontal", 2))
sketch4.addConstraint(Sketcher.Constraint("PointOnObject", 1, 3, -1))
sketch4.addConstraint(Sketcher.Constraint("Radius", 1, Q("5 mm")))
sketch4.addConstraint(Sketcher.Constraint("DistanceX", 0, 1, 0, 2, Q("20 mm")))
sketch4.addConstraint(Sketcher.Constraint("DistanceX", -1, 1, 1, 3, Q("85 mm")))
pocket2 = doc.addObject("PartDesign::Pocket", "Pocket001")
body.addObject(pocket2)
pocket2.Profile = sketch4
pocket2.Type = "ThroughAll"

# Sketch on YZ plane
sketch5 = doc.addObject("Sketcher::SketchObject", "Sketch004")
body.addObject(sketch5)
sketch5.AttachmentSupport = (doc.YZ_Plane, [""])
sketch5.MapMode = "FlatFace"
sketch5.AttachmentOffset = App.Placement(V(0, 0, 8), App.Rotation())
sketch5.addGeometry(Part.LineSegment(V(76.7, -92, 0), V(76.7, -88, 0)), False)
sketch5.addGeometry(Part.LineSegment(V(76.7, -88, 0), V(78.5, -88, 0)), False)
sketch5.addGeometry(Part.LineSegment(V(78.5, -88, 0), V(78.5, -85.8, 0)), False)
sketch5.addGeometry(Part.LineSegment(V(78.5, -85.8, 0), V(76.7, -85.8, 0)), False)
sketch5.addGeometry(Part.LineSegment(V(76.7, -85.8, 0), V(76.7, -83.5, 0)), False)
sketch5.addGeometry(Part.LineSegment(V(76.7, -83.5, 0), V(73.3, -83.5, 0)), False)
sketch5.addGeometry(Part.LineSegment(V(73.3, -83.5, 0), V(73.3, -85.8, 0)), False)
sketch5.addGeometry(Part.LineSegment(V(73.3, -85.8, 0), V(71.5, -85.8, 0)), False)
sketch5.addGeometry(Part.LineSegment(V(71.5, -85.8, 0), V(71.5, -88, 0)), False)
sketch5.addGeometry(Part.LineSegment(V(71.5, -88, 0), V(73.3, -88, 0)), False)
sketch5.addGeometry(Part.LineSegment(V(73.3, -88, 0), V(73.3, -92, 0)), False)
sketch5.addGeometry(Part.LineSegment(V(73.3, -92, 0), V(76.7, -92, 0)), False)
sketch5.addGeometry(Part.LineSegment(V(0, -17.1, 0), V(4, -17.1, 0)), False)
sketch5.addGeometry(Part.LineSegment(V(4, -17.1, 0), V(4, -19, 0)), False)
sketch5.addGeometry(Part.LineSegment(V(4, -19, 0), V(6.2, -19, 0)), False)
sketch5.addGeometry(Part.LineSegment(V(6.2, -19, 0), V(6.2, -17.1, 0)), False)
sketch5.addGeometry(Part.LineSegment(V(6.2, -17.1, 0), V(8.5, -17.1, 0)), False)
sketch5.addGeometry(Part.LineSegment(V(8.5, -17.1, 0), V(8.5, -13.8, 0)), False)
sketch5.addGeometry(Part.LineSegment(V(8.5, -13.8, 0), V(6.2, -13.8, 0)), False)
sketch5.addGeometry(Part.LineSegment(V(6.2, -13.8, 0), V(6.2, -12, 0)), False)
sketch5.addGeometry(Part.LineSegment(V(6.2, -12, 0), V(4, -12, 0)), False)
sketch5.addGeometry(Part.LineSegment(V(4, -12, 0), V(4, -13.8, 0)), False)
sketch5.addGeometry(Part.LineSegment(V(4, -13.8, 0), V(0, -13.8, 0)), False)
sketch5.addGeometry(Part.LineSegment(V(0, -13.8, 0), V(0, -17.1, 0)), False)
sketch5.addGeometry(Part.LineSegment(V(150, -17.1, 0), V(150, -13.8, 0)), False)
sketch5.addGeometry(Part.LineSegment(V(150, -13.8, 0), V(146, -13.8, 0)), False)
sketch5.addGeometry(Part.LineSegment(V(146, -13.8, 0), V(146, -12, 0)), False)
sketch5.addGeometry(Part.LineSegment(V(146, -12, 0), V(143.8, -12, 0)), False)
sketch5.addGeometry(Part.LineSegment(V(143.8, -12, 0), V(143.8, -13.8, 0)), False)
sketch5.addGeometry(Part.LineSegment(V(143.8, -13.8, 0), V(141.5, -13.8, 0)), False)
sketch5.addGeometry(Part.LineSegment(V(141.5, -13.8, 0), V(141.5, -17.1, 0)), False)
sketch5.addGeometry(Part.LineSegment(V(141.5, -17.1, 0), V(143.8, -17.1, 0)), False)
sketch5.addGeometry(Part.LineSegment(V(143.8, -17.1, 0), V(143.8, -19, 0)), False)
sketch5.addGeometry(Part.LineSegment(V(143.8, -19, 0), V(146, -19, 0)), False)
sketch5.addGeometry(Part.LineSegment(V(146, -19, 0), V(146, -17.1, 0)), False)
sketch5.addGeometry(Part.LineSegment(V(146, -17.1, 0), V(150, -17.1, 0)), False)
sketch5.addConstraint(Sketcher.Constraint("Coincident", 0, 2, 1, 1))
sketch5.addConstraint(Sketcher.Constraint("Coincident", 1, 2, 2, 1))
sketch5.addConstraint(Sketcher.Constraint("Coincident", 2, 2, 3, 1))
sketch5.addConstraint(Sketcher.Constraint("Coincident", 3, 2, 4, 1))
sketch5.addConstraint(Sketcher.Constraint("Coincident", 4, 2, 5, 1))
sketch5.addConstraint(Sketcher.Constraint("Coincident", 5, 2, 6, 1))
sketch5.addConstraint(Sketcher.Constraint("Coincident", 6, 2, 7, 1))
sketch5.addConstraint(Sketcher.Constraint("Coincident", 7, 2, 8, 1))
sketch5.addConstraint(Sketcher.Constraint("Coincident", 8, 2, 9, 1))
sketch5.addConstraint(Sketcher.Constraint("Coincident", 9, 2, 10, 1))
sketch5.addConstraint(Sketcher.Constraint("Coincident", 10, 2, 11, 1))
sketch5.addConstraint(Sketcher.Constraint("Coincident", 11, 2, 0, 1))
sketch5.addConstraint(Sketcher.Constraint("Coincident", 12, 2, 13, 1))
sketch5.addConstraint(Sketcher.Constraint("Coincident", 13, 2, 14, 1))
sketch5.addConstraint(Sketcher.Constraint("Coincident", 14, 2, 15, 1))
sketch5.addConstraint(Sketcher.Constraint("Coincident", 15, 2, 16, 1))
sketch5.addConstraint(Sketcher.Constraint("Coincident", 16, 2, 17, 1))
sketch5.addConstraint(Sketcher.Constraint("Coincident", 17, 2, 18, 1))
sketch5.addConstraint(Sketcher.Constraint("Coincident", 18, 2, 19, 1))
sketch5.addConstraint(Sketcher.Constraint("Coincident", 19, 2, 20, 1))
sketch5.addConstraint(Sketcher.Constraint("Coincident", 20, 2, 21, 1))
sketch5.addConstraint(Sketcher.Constraint("Coincident", 21, 2, 22, 1))
sketch5.addConstraint(Sketcher.Constraint("Coincident", 22, 2, 23, 1))
sketch5.addConstraint(Sketcher.Constraint("Coincident", 23, 2, 12, 1))
sketch5.addConstraint(Sketcher.Constraint("Coincident", 24, 2, 25, 1))
sketch5.addConstraint(Sketcher.Constraint("Coincident", 25, 2, 26, 1))
sketch5.addConstraint(Sketcher.Constraint("Coincident", 26, 2, 27, 1))
sketch5.addConstraint(Sketcher.Constraint("Coincident", 27, 2, 28, 1))
sketch5.addConstraint(Sketcher.Constraint("Coincident", 28, 2, 29, 1))
sketch5.addConstraint(Sketcher.Constraint("Coincident", 29, 2, 30, 1))
sketch5.addConstraint(Sketcher.Constraint("Coincident", 30, 2, 31, 1))
sketch5.addConstraint(Sketcher.Constraint("Coincident", 31, 2, 32, 1))
sketch5.addConstraint(Sketcher.Constraint("Coincident", 32, 2, 33, 1))
sketch5.addConstraint(Sketcher.Constraint("Coincident", 33, 2, 34, 1))
sketch5.addConstraint(Sketcher.Constraint("Coincident", 34, 2, 35, 1))
sketch5.addConstraint(Sketcher.Constraint("Coincident", 35, 2, 24, 1))
sketch5.addConstraint(Sketcher.Constraint("Vertical", 0))
sketch5.addConstraint(Sketcher.Constraint("Horizontal", 1))
sketch5.addConstraint(Sketcher.Constraint("Vertical", 2))
sketch5.addConstraint(Sketcher.Constraint("Horizontal", 3))
sketch5.addConstraint(Sketcher.Constraint("Vertical", 4))
sketch5.addConstraint(Sketcher.Constraint("Horizontal", 5))
sketch5.addConstraint(Sketcher.Constraint("Vertical", 6))
sketch5.addConstraint(Sketcher.Constraint("Horizontal", 7))
sketch5.addConstraint(Sketcher.Constraint("Vertical", 8))
sketch5.addConstraint(Sketcher.Constraint("Horizontal", 9))
sketch5.addConstraint(Sketcher.Constraint("Vertical", 10))
sketch5.addConstraint(Sketcher.Constraint("Horizontal", 11))
sketch5.addConstraint(Sketcher.Constraint("Horizontal", 12))
sketch5.addConstraint(Sketcher.Constraint("Vertical", 13))
sketch5.addConstraint(Sketcher.Constraint("Horizontal", 14))
sketch5.addConstraint(Sketcher.Constraint("Vertical", 15))
sketch5.addConstraint(Sketcher.Constraint("Horizontal", 16))
sketch5.addConstraint(Sketcher.Constraint("Vertical", 17))
sketch5.addConstraint(Sketcher.Constraint("Horizontal", 18))
sketch5.addConstraint(Sketcher.Constraint("Vertical", 19))
sketch5.addConstraint(Sketcher.Constraint("Horizontal", 20))
sketch5.addConstraint(Sketcher.Constraint("Vertical", 21))
sketch5.addConstraint(Sketcher.Constraint("Horizontal", 22))
sketch5.addConstraint(Sketcher.Constraint("Vertical", 23))
sketch5.addConstraint(Sketcher.Constraint("Vertical", 24))
sketch5.addConstraint(Sketcher.Constraint("Horizontal", 25))
sketch5.addConstraint(Sketcher.Constraint("Vertical", 26))
sketch5.addConstraint(Sketcher.Constraint("Horizontal", 27))
sketch5.addConstraint(Sketcher.Constraint("Vertical", 28))
sketch5.addConstraint(Sketcher.Constraint("Horizontal", 29))
sketch5.addConstraint(Sketcher.Constraint("Vertical", 30))
sketch5.addConstraint(Sketcher.Constraint("Horizontal", 31))
sketch5.addConstraint(Sketcher.Constraint("Vertical", 32))
sketch5.addConstraint(Sketcher.Constraint("Horizontal", 33))
sketch5.addConstraint(Sketcher.Constraint("Vertical", 34))
sketch5.addConstraint(Sketcher.Constraint("Horizontal", 35))
sketch5.addConstraint(Sketcher.Constraint("PointOnObject", 22, 2, -2))
sketch5.addConstraint(Sketcher.Constraint("Horizontal", 3, 2, 6, 2))
sketch5.addConstraint(Sketcher.Constraint("Horizontal", 1, 2, 8, 2))
sketch5.addConstraint(Sketcher.Constraint("Horizontal", 12, 2, 15, 2))
sketch5.addConstraint(Sketcher.Constraint("Horizontal", 18, 2, 21, 2))
sketch5.addConstraint(Sketcher.Constraint("Horizontal", 22, 2, 24, 2))
sketch5.addConstraint(Sketcher.Constraint("Horizontal", 20, 2, 26, 2))
sketch5.addConstraint(Sketcher.Constraint("Horizontal", 25, 2, 28, 2))
sketch5.addConstraint(Sketcher.Constraint("Horizontal", 23, 2, 30, 2))
sketch5.addConstraint(Sketcher.Constraint("Horizontal", 14, 2, 32, 2))
sketch5.addConstraint(Sketcher.Constraint("Horizontal", 31, 2, 34, 2))
sketch5.addConstraint(Sketcher.Constraint("Vertical", 0, 2, 3, 2))
sketch5.addConstraint(Sketcher.Constraint("Vertical", 6, 2, 9, 2))
sketch5.addConstraint(Sketcher.Constraint("Vertical", 15, 2, 18, 2))
sketch5.addConstraint(Sketcher.Constraint("Vertical", 13, 2, 20, 2))
sketch5.addConstraint(Sketcher.Constraint("Vertical", 28, 2, 31, 2))
sketch5.addConstraint(Sketcher.Constraint("Vertical", 26, 2, 33, 2))
sketch5.addConstraint(Sketcher.Constraint("Equal", 3, 7))
sketch5.addConstraint(Sketcher.Constraint("Equal", 22, 25))
sketch5.addConstraint(Sketcher.Constraint("Equal", 20, 27))
sketch5.addConstraint(Sketcher.Constraint("Equal", 18, 29))
sketch5.addConstraint(Sketcher.Constraint("Equal", 35, 0))
sketch5.addConstraint(Sketcher.Constraint("Equal", 33, 2))
sketch5.addConstraint(Sketcher.Constraint("Equal", 31, 4))
sketch5.addConstraint(Sketcher.Constraint("Equal", 9, 13))
sketch5.addConstraint(Sketcher.Constraint("Equal", 11, 17))
sketch5.addConstraint(Sketcher.Constraint("Equal", 15, 19))
sketch5.addConstraint(Sketcher.Constraint("DistanceX", 12, 1, 12, 2, Q("4 mm")))
sketch5.addConstraint(Sketcher.Constraint("DistanceX", 5, 2, 5, 1, Q("3.3 mm")))
sketch5.addConstraint(Sketcher.Constraint("DistanceX", 14, 1, 14, 2, Q("2.2 mm")))
sketch5.addConstraint(Sketcher.Constraint("DistanceX", 16, 1, 16, 2, Q("2.3 mm")))
sketch5.addConstraint(Sketcher.Constraint("DistanceY", 0, 2, -1, 1, Q("88 mm")))
sketch5.addConstraint(Sketcher.Constraint("DistanceY", 13, 2, -1, 1, Q("19 mm")))
sketch5.addConstraint(Sketcher.Constraint("DistanceY", 19, 2, -1, 1, Q("12 mm")))
sketch5.addConstraint(Sketcher.Constraint("DistanceX", -1, 1, 24, 2, Q("150 mm")))
sketch5.addConstraint(Sketcher.Constraint("DistanceX", -1, 1, 1, 2, Q("78.5 mm")))
pocket3 = doc.addObject("PartDesign::Pocket", "Pocket002")
body.addObject(pocket3)
pocket3.Profile = sketch5
pocket3.Type = "ThroughAll"

doc.recompute()
